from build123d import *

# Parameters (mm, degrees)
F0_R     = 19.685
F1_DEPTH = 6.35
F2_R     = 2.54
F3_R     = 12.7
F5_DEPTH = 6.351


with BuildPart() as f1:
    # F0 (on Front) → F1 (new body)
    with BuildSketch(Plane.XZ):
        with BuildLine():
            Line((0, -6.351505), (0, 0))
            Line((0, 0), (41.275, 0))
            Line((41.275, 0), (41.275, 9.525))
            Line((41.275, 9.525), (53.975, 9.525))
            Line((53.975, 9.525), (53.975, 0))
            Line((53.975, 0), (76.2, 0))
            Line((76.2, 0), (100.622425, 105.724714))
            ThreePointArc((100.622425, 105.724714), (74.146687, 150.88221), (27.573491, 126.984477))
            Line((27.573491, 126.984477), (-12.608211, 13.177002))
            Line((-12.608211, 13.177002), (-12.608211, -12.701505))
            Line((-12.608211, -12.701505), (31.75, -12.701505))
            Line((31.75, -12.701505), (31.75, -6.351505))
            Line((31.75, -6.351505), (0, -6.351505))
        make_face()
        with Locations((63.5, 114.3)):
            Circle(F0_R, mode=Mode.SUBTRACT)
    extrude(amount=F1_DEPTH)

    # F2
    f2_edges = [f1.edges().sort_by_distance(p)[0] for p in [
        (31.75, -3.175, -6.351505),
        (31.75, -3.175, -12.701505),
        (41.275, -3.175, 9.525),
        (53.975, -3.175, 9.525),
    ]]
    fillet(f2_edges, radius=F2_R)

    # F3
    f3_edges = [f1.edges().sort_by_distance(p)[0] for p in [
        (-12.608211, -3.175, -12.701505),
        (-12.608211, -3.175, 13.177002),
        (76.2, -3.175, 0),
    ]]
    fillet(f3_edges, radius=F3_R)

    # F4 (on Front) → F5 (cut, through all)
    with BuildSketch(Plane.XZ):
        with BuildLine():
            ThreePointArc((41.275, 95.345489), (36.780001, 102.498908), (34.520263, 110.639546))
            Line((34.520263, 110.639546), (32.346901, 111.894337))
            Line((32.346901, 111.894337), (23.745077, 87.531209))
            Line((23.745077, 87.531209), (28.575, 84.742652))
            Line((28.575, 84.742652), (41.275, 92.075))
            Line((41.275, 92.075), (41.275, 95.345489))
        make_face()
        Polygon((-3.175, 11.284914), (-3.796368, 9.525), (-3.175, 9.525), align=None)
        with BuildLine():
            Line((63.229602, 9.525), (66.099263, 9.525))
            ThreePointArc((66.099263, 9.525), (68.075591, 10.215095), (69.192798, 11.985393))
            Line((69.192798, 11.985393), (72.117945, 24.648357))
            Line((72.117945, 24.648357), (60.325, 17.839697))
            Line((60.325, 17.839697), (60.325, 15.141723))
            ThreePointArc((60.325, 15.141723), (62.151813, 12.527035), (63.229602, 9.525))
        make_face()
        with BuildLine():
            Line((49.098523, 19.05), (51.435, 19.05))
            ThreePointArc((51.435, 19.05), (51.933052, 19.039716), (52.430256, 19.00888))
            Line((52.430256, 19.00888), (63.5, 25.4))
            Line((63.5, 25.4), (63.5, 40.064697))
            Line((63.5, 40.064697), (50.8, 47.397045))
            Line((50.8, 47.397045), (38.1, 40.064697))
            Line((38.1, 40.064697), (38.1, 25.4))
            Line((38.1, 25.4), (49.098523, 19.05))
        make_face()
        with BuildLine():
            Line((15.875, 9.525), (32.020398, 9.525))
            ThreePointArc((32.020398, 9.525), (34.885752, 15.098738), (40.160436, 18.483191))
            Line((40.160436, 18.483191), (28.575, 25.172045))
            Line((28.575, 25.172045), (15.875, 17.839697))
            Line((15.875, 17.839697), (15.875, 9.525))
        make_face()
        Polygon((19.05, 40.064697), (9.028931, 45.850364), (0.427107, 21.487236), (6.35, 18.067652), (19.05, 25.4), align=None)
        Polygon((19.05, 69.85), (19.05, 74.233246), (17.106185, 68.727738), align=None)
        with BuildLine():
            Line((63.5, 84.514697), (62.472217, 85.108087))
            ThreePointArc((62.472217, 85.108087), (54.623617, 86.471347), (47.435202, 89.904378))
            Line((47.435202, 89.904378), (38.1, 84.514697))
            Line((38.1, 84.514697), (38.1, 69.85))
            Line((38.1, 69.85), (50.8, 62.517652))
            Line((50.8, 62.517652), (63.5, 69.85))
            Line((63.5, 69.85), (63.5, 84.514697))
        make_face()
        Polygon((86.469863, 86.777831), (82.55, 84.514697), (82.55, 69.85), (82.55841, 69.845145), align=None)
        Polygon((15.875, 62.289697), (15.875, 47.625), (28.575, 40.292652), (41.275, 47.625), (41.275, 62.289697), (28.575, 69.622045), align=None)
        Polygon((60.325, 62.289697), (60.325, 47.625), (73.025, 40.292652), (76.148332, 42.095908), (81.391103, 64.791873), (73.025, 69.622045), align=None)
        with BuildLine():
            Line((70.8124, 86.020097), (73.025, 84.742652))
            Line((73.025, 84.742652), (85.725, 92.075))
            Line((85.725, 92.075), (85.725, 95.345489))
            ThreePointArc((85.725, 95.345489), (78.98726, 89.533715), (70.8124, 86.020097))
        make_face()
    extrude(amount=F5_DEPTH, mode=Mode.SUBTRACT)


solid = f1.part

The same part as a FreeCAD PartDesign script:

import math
import FreeCAD as App
import Part
import Sketcher

V = App.Vector
Q = App.Units.Quantity


def edges_at(feature, points):
    """Names of the edges that pass closest to the given points."""
    edges = feature.Shape.Edges
    near = lambda p: min(range(len(edges)), key=lambda i: edges[i].distToShape(Part.Vertex(*p))[0])
    return sorted({f"Edge{near(p) + 1}" for p in points})

doc = App.newDocument("Part")
body = doc.addObject("PartDesign::Body", "Body")

sketch1 = doc.addObject("Sketcher::SketchObject", "Sketch")
body.addObject(sketch1)
sketch1.AttachmentSupport = (doc.XZ_Plane, [""])
sketch1.MapMode = "FlatFace"
sketch1.addGeometry([
    Part.LineSegment(V(0, -6.351505, 0), V(0, 0, 0)),
    Part.LineSegment(V(0, 0, 0), V(41.275, 0, 0)),
    Part.LineSegment(V(41.275, 0, 0), V(41.275, 9.525, 0)),
    Part.LineSegment(V(41.275, 9.525, 0), V(53.975, 9.525, 0)),
    Part.LineSegment(V(53.975, 9.525, 0), V(53.975, 0, 0)),
    Part.LineSegment(V(53.975, 0, 0), V(76.2, 0, 0)),
    Part.LineSegment(V(76.2, 0, 0), V(100.622425, 105.724714, 0)),
    Part.ArcOfCircle(Part.Circle(V(63.5, 114.300001, 0), V(0, 0, 1), 38.1), math.radians(-13.007179), math.radians(160.553538)),
    Part.LineSegment(V(27.573491, 126.984477, 0), V(-12.608211, 13.177002, 0)),
    Part.LineSegment(V(-12.608211, 13.177002, 0), V(-12.608211, -12.701505, 0)),
    Part.LineSegment(V(-12.608211, -12.701505, 0), V(31.75, -12.701505, 0)),
    Part.LineSegment(V(31.75, -12.701505, 0), V(31.75, -6.351505, 0)),
    Part.LineSegment(V(31.75, -6.351505, 0), V(0, -6.351505, 0)),
    Part.Circle(V(63.5, 114.3, 0), V(0, 0, 1), 19.685),
], False)
sketch1.addConstraint([
    Sketcher.Constraint("Coincident", 0, 2, 1, 1),
    Sketcher.Constraint("Coincident", 1, 2, 2, 1),
    Sketcher.Constraint("Coincident", 2, 2, 3, 1),
    Sketcher.Constraint("Coincident", 3, 2, 4, 1),
    Sketcher.Constraint("Coincident", 4, 2, 5, 1),
    Sketcher.Constraint("Coincident", 5, 2, 6, 1),
    Sketcher.Constraint("Tangent", 6, 2, 7, 1),
    Sketcher.Constraint("Tangent", 7, 2, 8, 1),
    Sketcher.Constraint("Coincident", 8, 2, 9, 1),
    Sketcher.Constraint("Coincident", 9, 2, 10, 1),
    Sketcher.Constraint("Coincident", 10, 2, 11, 1),
    Sketcher.Constraint("Coincident", 11, 2, 12, 1),
    Sketcher.Constraint("Coincident", 12, 2, 0, 1),
    Sketcher.Constraint("Vertical", 0),
    Sketcher.Constraint("Horizontal", 1),
    Sketcher.Constraint("Vertical", 2),
    Sketcher.Constraint("Horizontal", 3),
    Sketcher.Constraint("Vertical", 4),
    Sketcher.Constraint("Horizontal", 5),
    Sketcher.Constraint("Vertical", 9),
    Sketcher.Constraint("Horizontal", 10),
    Sketcher.Constraint("Vertical", 11),
    Sketcher.Constraint("Horizontal", 12),
    Sketcher.Constraint("Coincident", 0, 2, -1, 1),
    Sketcher.Constraint("Coincident", 13, 3, 7, 3),
    Sketcher.Constraint("PointOnObject", 4, 2, -1),
    Sketcher.Constraint("Radius", 7, Q("1.5 in")),
    Sketcher.Constraint("Diameter", 13, Q("1.55 in")),
    Sketcher.Constraint("DistanceX", 3, 1, 3, 2, Q("0.5 in")),
    Sketcher.Constraint("DistanceX", -1, 1, 5, 2, Q("3 in")),
    Sketcher.Constraint("DistanceX", 12, 2, 12, 1, Q("1.25 in")),
    Sketcher.Constraint("DistanceY", 11, 1, 11, 2, Q("0.25 in")),
    Sketcher.Constraint("DistanceX", -1, 1, 7, 3, Q("2.5 in")),
    Sketcher.Constraint("DistanceY", -1, 1, 7, 3, Q("4.5 in")),
    Sketcher.Constraint("DistanceX", 1, 1, 1, 2, Q("1.625 in")),
    Sketcher.Constraint("DistanceY", 2, 1, 2, 2, Q("0.375 in")),
    Sketcher.Constraint("DistanceX", 10, 1, 10, 2, 44.358211),
    Sketcher.Constraint("DistanceY", 2, 2, 8, 2, 3.652002),
    Sketcher.Constraint("DistanceY", 0, 1, 0, 2, 6.351505),
])
pad1 = doc.addObject("PartDesign::Pad", "Pad")
body.addObject(pad1)
pad1.Profile = sketch1
pad1.Length = Q("0.25 in")
doc.recompute()

fillet = doc.addObject("PartDesign::Fillet", "Fillet")
body.addObject(fillet)
fillet.Base = (pad1, edges_at(pad1, [
    (31.75, -3.175, -6.352),
    (31.75, -3.175, -12.702),
    (41.275, -3.175, 9.525),
    (53.975, -3.175, 9.525),
]))
fillet.Radius = Q("0.1 in")
doc.recompute()

fillet2 = doc.addObject("PartDesign::Fillet", "Fillet001")
body.addObject(fillet2)
fillet2.Base = (fillet, edges_at(fillet, [(-12.608, -3.175, -12.702), (-12.608, -3.175, 13.177), (76.2, -3.175, 0)]))
fillet2.Radius = Q("0.5 in")

sketch2 = doc.addObject("Sketcher::SketchObject", "Sketch001")
body.addObject(sketch2)
sketch2.AttachmentSupport = (doc.XZ_Plane, [""])
sketch2.MapMode = "FlatFace"
sketch2.addGeometry([
    Part.ArcOfCircle(Part.Circle(V(63.499992, 114.299995, 0), V(0, 0, 1), 29.209991), math.radians(-172.801054), math.radians(-139.540913)),
    Part.LineSegment(V(34.520263, 110.639546, 0), V(32.346901, 111.894337, 0)),
    Part.LineSegment(V(32.346901, 111.894337, 0), V(23.745077, 87.531209, 0)),
    Part.LineSegment(V(23.745077, 87.531209, 0), V(28.575, 84.742652, 0)),
    Part.LineSegment(V(28.575, 84.742652, 0), V(41.275, 92.075, 0)),
    Part.LineSegment(V(41.275, 92.075, 0), V(41.275, 95.345489, 0)),
    Part.LineSegment(V(-3.175, 11.284914, 0), V(-3.796368, 9.525, 0)),
    Part.LineSegment(V(-3.796368, 9.525, 0), V(-3.175, 9.525, 0)),
    Part.LineSegment(V(-3.175, 9.525, 0), V(-3.175, 11.284914, 0)),
    Part.LineSegment(V(63.229602, 9.525, 0), V(66.099263, 9.525, 0)),
    Part.ArcOfCircle(Part.Circle(V(66.099263, 12.699999, 0), V(0, 0, 1), 3.174999), math.radians(-90.000009), math.radians(-13.007157)),
    Part.LineSegment(V(69.192798, 11.985393, 0), V(72.117945, 24.648357, 0)),
    Part.LineSegment(V(72.117945, 24.648357, 0), V(60.325, 17.839697, 0)),
    Part.LineSegment(V(60.325, 17.839697, 0), V(60.325, 15.141723, 0)),
    Part.ArcOfCircle(Part.Circle(V(51.435, 6.984999, 0), V(0, 0, 1), 12.065001), math.radians(12.1532), math.radians(42.536901)),
    Part.LineSegment(V(49.098523, 19.05, 0), V(51.435, 19.05, 0)),
    Part.ArcOfCircle(Part.Circle(V(51.435017, 6.985425, 0), V(0, 0, 1), 12.064575), math.radians(85.268143), math.radians(90.000083)),
    Part.LineSegment(V(52.430256, 19.00888, 0), V(63.5, 25.4, 0)),
    Part.LineSegment(V(63.5, 25.4, 0), V(63.5, 40.064697, 0)),
    Part.LineSegment(V(63.5, 40.064697, 0), V(50.8, 47.397045, 0)),
    Part.LineSegment(V(50.8, 47.397045, 0), V(38.1, 40.064697, 0)),
    Part.LineSegment(V(38.1, 40.064697, 0), V(38.1, 25.4, 0)),
    Part.LineSegment(V(38.1, 25.4, 0), V(49.098523, 19.05, 0)),
    Part.LineSegment(V(15.875, 9.525, 0), V(32.020398, 9.525, 0)),
    Part.ArcOfCircle(Part.Circle(V(43.815005, 6.984996, 0), V(0, 0, 1), 12.065006), math.radians(107.632258), math.radians(167.846787)),
    Part.LineSegment(V(40.160436, 18.483191, 0), V(28.575, 25.172045, 0)),
    Part.LineSegment(V(28.575, 25.172045, 0), V(15.875, 17.839697, 0)),
    Part.LineSegment(V(15.875, 17.839697, 0), V(15.875, 9.525, 0)),
    Part.LineSegment(V(19.05, 40.064697, 0), V(9.028931, 45.850364, 0)),
    Part.LineSegment(V(9.028931, 45.850364, 0), V(0.427107, 21.487236, 0)),
    Part.LineSegment(V(0.427107, 21.487236, 0), V(6.35, 18.067652, 0)),
    Part.LineSegment(V(6.35, 18.067652, 0), V(19.05, 25.4, 0)),
    Part.LineSegment(V(19.05, 25.4, 0), V(19.05, 40.064697, 0)),
    Part.LineSegment(V(19.05, 69.85, 0), V(19.05, 74.233246, 0)),
    Part.LineSegment(V(19.05, 74.233246, 0), V(17.106185, 68.727738, 0)),
    Part.LineSegment(V(17.106185, 68.727738, 0), V(19.05, 69.85, 0)),
    Part.LineSegment(V(63.5, 84.514697, 0), V(62.472217, 85.108087, 0)),
    Part.ArcOfCircle(Part.Circle(V(63.500002, 114.300005, 0), V(0, 0, 1), 29.210006), math.radians(-123.365362), math.radians(-92.016429)),
    Part.LineSegment(V(47.435202, 89.904378, 0), V(38.1, 84.514697, 0)),
    Part.LineSegment(V(38.1, 84.514697, 0), V(38.1, 69.85, 0)),
    Part.LineSegment(V(38.1, 69.85, 0), V(50.8, 62.517652, 0)),
    Part.LineSegment(V(50.8, 62.517652, 0), V(63.5, 69.85, 0)),
    Part.LineSegment(V(63.5, 69.85, 0), V(63.5, 84.514697, 0)),
    Part.LineSegment(V(86.469863, 86.777831, 0), V(82.55, 84.514697, 0)),
    Part.LineSegment(V(82.55, 84.514697, 0), V(82.55, 69.85, 0)),
    Part.LineSegment(V(82.55, 69.85, 0), V(82.55841, 69.845145, 0)),
    Part.LineSegment(V(82.55841, 69.845145, 0), V(86.469863, 86.777831, 0)),
    Part.LineSegment(V(15.875, 62.289697, 0), V(15.875, 47.625, 0)),
    Part.LineSegment(V(15.875, 47.625, 0), V(28.575, 40.292652, 0)),
    Part.LineSegment(V(28.575, 40.292652, 0), V(41.275, 47.625, 0)),
    Part.LineSegment(V(41.275, 47.625, 0), V(41.275, 62.289697, 0)),
    Part.LineSegment(V(41.275, 62.289697, 0), V(28.575, 69.622045, 0)),
    Part.LineSegment(V(28.575, 69.622045, 0), V(15.875, 62.289697, 0)),
    Part.LineSegment(V(60.325, 62.289697, 0), V(60.325, 47.625, 0)),
    Part.LineSegment(V(60.325, 47.625, 0), V(73.025, 40.292652, 0)),
    Part.LineSegment(V(73.025, 40.292652, 0), V(76.148332, 42.095908, 0)),
    Part.LineSegment(V(76.148332, 42.095908, 0), V(81.391103, 64.791873, 0)),
    Part.LineSegment(V(81.391103, 64.791873, 0), V(73.025, 69.622045, 0)),
    Part.LineSegment(V(73.025, 69.622045, 0), V(60.325, 62.289697, 0)),
    Part.LineSegment(V(70.8124, 86.020097, 0), V(73.025, 84.742652, 0)),
    Part.LineSegment(V(73.025, 84.742652, 0), V(85.725, 92.075, 0)),
    Part.LineSegment(V(85.725, 92.075, 0), V(85.725, 95.345489, 0)),
    Part.ArcOfCircle(Part.Circle(V(63.499997, 114.300005, 0), V(0, 0, 1), 29.210005), math.radians(-75.502428), math.radians(-40.459087)),
], False)
sketch2.addConstraint([
    Sketcher.Constraint("Coincident", 0, 1, 1, 1),
    Sketcher.Constraint("Coincident", 1, 2, 2, 1),
    Sketcher.Constraint("Coincident", 2, 2, 3, 1),
    Sketcher.Constraint("Coincident", 3, 2, 4, 1),
    Sketcher.Constraint("Coincident", 4, 2, 5, 1),
    Sketcher.Constraint("Coincident", 5, 2, 0, 2),
    Sketcher.Constraint("Coincident", 6, 2, 7, 1),
    Sketcher.Constraint("Coincident", 7, 2, 8, 1),
    Sketcher.Constraint("Coincident", 8, 2, 6, 1),
    Sketcher.Constraint("Tangent", 9, 2, 10, 1),
    Sketcher.Constraint("Tangent", 10, 2, 11, 1),
    Sketcher.Constraint("Coincident", 11, 2, 12, 1),
    Sketcher.Constraint("Coincident", 12, 2, 13, 1),
    Sketcher.Constraint("Coincident", 13, 2, 14, 2),
    Sketcher.Constraint("Coincident", 14, 1, 9, 1),
    Sketcher.Constraint("Tangent", 15, 2, 16, 2),
    Sketcher.Constraint("Coincident", 16, 1, 17, 1),
    Sketcher.Constraint("Coincident", 17, 2, 18, 1),
    Sketcher.Constraint("Coincident", 18, 2, 19, 1),
    Sketcher.Constraint("Coincident", 19, 2, 20, 1),
    Sketcher.Constraint("Coincident", 20, 2, 21, 1),
    Sketcher.Constraint("Coincident", 21, 2, 22, 1),
    Sketcher.Constraint("Coincident", 22, 2, 15, 1),
    Sketcher.Constraint("Coincident", 23, 2, 24, 2),
    Sketcher.Constraint("Coincident", 24, 1, 25, 1),
    Sketcher.Constraint("Coincident", 25, 2, 26, 1),
    Sketcher.Constraint("Coincident", 26, 2, 27, 1),
    Sketcher.Constraint("Coincident", 27, 2, 23, 1),
    Sketcher.Constraint("Coincident", 28, 2, 29, 1),
    Sketcher.Constraint("Coincident", 29, 2, 30, 1),
    Sketcher.Constraint("Coincident", 30, 2, 31, 1),
    Sketcher.Constraint("Coincident", 31, 2, 32, 1),
    Sketcher.Constraint("Coincident", 32, 2, 28, 1),
    Sketcher.Constraint("Coincident", 33, 2, 34, 1),
    Sketcher.Constraint("Coincident", 34, 2, 35, 1),
    Sketcher.Constraint("Coincident", 35, 2, 33, 1),
    Sketcher.Constraint("Coincident", 36, 2, 37, 2),
    Sketcher.Constraint("Coincident", 37, 1, 38, 1),
    Sketcher.Constraint("Coincident", 38, 2, 39, 1),
    Sketcher.Constraint("Coincident", 39, 2, 40, 1),
    Sketcher.Constraint("Coincident", 40, 2, 41, 1),
    Sketcher.Constraint("Coincident", 41, 2, 42, 1),
    Sketcher.Constraint("Coincident", 42, 2, 36, 1),
    Sketcher.Constraint("Coincident", 43, 2, 44, 1),
    Sketcher.Constraint("Coincident", 44, 2, 45, 1),
    Sketcher.Constraint("Coincident", 45, 2, 46, 1),
    Sketcher.Constraint("Coincident", 46, 2, 43, 1),
    Sketcher.Constraint("Coincident", 47, 2, 48, 1),
    Sketcher.Constraint("Coincident", 48, 2, 49, 1),
    Sketcher.Constraint("Coincident", 49, 2, 50, 1),
    Sketcher.Constraint("Coincident", 50, 2, 51, 1),
    Sketcher.Constraint("Coincident", 51, 2, 52, 1),
    Sketcher.Constraint("Coincident", 52, 2, 47, 1),
    Sketcher.Constraint("Coincident", 53, 2, 54, 1),
    Sketcher.Constraint("Coincident", 54, 2, 55, 1),
    Sketcher.Constraint("Coincident", 55, 2, 56, 1),
    Sketcher.Constraint("Coincident", 56, 2, 57, 1),
    Sketcher.Constraint("Coincident", 57, 2, 58, 1),
    Sketcher.Constraint("Coincident", 58, 2, 53, 1),
    Sketcher.Constraint("Coincident", 59, 2, 60, 1),
    Sketcher.Constraint("Coincident", 60, 2, 61, 1),
    Sketcher.Constraint("Coincident", 61, 2, 62, 2),
    Sketcher.Constraint("Coincident", 62, 1, 59, 1),
    Sketcher.Constraint("Vertical", 5),
    Sketcher.Constraint("Horizontal", 7),
    Sketcher.Constraint("Vertical", 8),
    Sketcher.Constraint("Horizontal", 9),
    Sketcher.Constraint("Vertical", 13),
    Sketcher.Constraint("Horizontal", 15),
    Sketcher.Constraint("Vertical", 18),
    Sketcher.Constraint("Vertical", 21),
    Sketcher.Constraint("Horizontal", 23),
    Sketcher.Constraint("Vertical", 27),
    Sketcher.Constraint("Vertical", 32),
    Sketcher.Constraint("Vertical", 33),
    Sketcher.Constraint("Vertical", 39),
    Sketcher.Constraint("Vertical", 42),
    Sketcher.Constraint("Vertical", 44),
    Sketcher.Constraint("Vertical", 47),
    Sketcher.Constraint("Vertical", 50),
    Sketcher.Constraint("Vertical", 53),
    Sketcher.Constraint("Vertical", 61),
    Sketcher.Constraint("Coincident", 62, 3, 37, 3),
    Sketcher.Constraint("Equal", 37, 62),
    Sketcher.Constraint("Parallel", 1, 3),
    Sketcher.Constraint("Parallel", 2, 6),
    Sketcher.Constraint("Parallel", 4, 12),
    Sketcher.Constraint("Parallel", 12, 17),
    Sketcher.Constraint("Parallel", 3, 19),
    Sketcher.Constraint("Parallel", 17, 20),
    Sketcher.Constraint("Parallel", 19, 22),
    Sketcher.Constraint("Parallel", 22, 25),
    Sketcher.Constraint("Parallel", 20, 26),
    Sketcher.Constraint("Parallel", 25, 28),
    Sketcher.Constraint("Parallel", 6, 29),
    Sketcher.Constraint("Parallel", 28, 30),
    Sketcher.Constraint("Parallel", 26, 31),
    Sketcher.Constraint("Parallel", 29, 34),
    Sketcher.Constraint("Parallel", 31, 35),
    Sketcher.Constraint("Parallel", 30, 36),
    Sketcher.Constraint("Parallel", 35, 38),
    Sketcher.Constraint("Parallel", 36, 40),
    Sketcher.Constraint("Parallel", 38, 41),
    Sketcher.Constraint("Parallel", 41, 43),
    Sketcher.Constraint("Parallel", 11, 46),
    Sketcher.Constraint("Parallel", 40, 48),
    Sketcher.Constraint("Parallel", 43, 49),
    Sketcher.Constraint("Parallel", 48, 51),
    Sketcher.Constraint("Parallel", 49, 52),
    Sketcher.Constraint("Parallel", 51, 54),
    Sketcher.Constraint("Parallel", 52, 55),
    Sketcher.Constraint("Parallel", 46, 56),
    Sketcher.Constraint("Parallel", 54, 57),
    Sketcher.Constraint("Parallel", 55, 58),
    Sketcher.Constraint("Parallel", 57, 59),
    Sketcher.Constraint("Parallel", 58, 60),
    Sketcher.Constraint("Horizontal", 7, 2, 9, 2),
    Sketcher.Constraint("Horizontal", 18, 2, 20, 2),
    Sketcher.Constraint("Horizontal", 17, 2, 21, 2),
    Sketcher.Constraint("Horizontal", 14, 1, 23, 2),
    Sketcher.Constraint("Horizontal", 12, 2, 26, 2),
    Sketcher.Constraint("Horizontal", 21, 2, 31, 2),
    Sketcher.Constraint("Horizontal", 20, 2, 32, 2),
    Sketcher.Constraint("Horizontal", 35, 2, 39, 2),
    Sketcher.Constraint("Horizontal", 39, 2, 41, 2),
    Sketcher.Constraint("Horizontal", 38, 2, 42, 2),
    Sketcher.Constraint("Horizontal", 42, 2, 43, 2),
    Sketcher.Constraint("Horizontal", 41, 2, 44, 2),
    Sketcher.Constraint("Horizontal", 47, 2, 49, 2),
    Sketcher.Constraint("Horizontal", 50, 2, 52, 2),
    Sketcher.Constraint("Horizontal", 49, 2, 53, 2),
    Sketcher.Constraint("Horizontal", 48, 2, 54, 2),
    Sketcher.Constraint("Horizontal", 51, 2, 57, 2),
    Sketcher.Constraint("Horizontal", 52, 2, 58, 2),
    Sketcher.Constraint("Horizontal", 3, 2, 59, 2),
    Sketcher.Constraint("Horizontal", 4, 2, 60, 2),
    Sketcher.Constraint("Horizontal", 5, 2, 61, 2),
    Sketcher.Constraint("Vertical", 14, 3, 15, 2),
    Sketcher.Constraint("Vertical", 3, 2, 25, 2),
    Sketcher.Constraint("Vertical", 32, 2, 33, 2),
    Sketcher.Constraint("Vertical", 21, 2, 38, 2),
    Sketcher.Constraint("Vertical", 19, 2, 40, 2),
    Sketcher.Constraint("Vertical", 18, 2, 41, 2),
    Sketcher.Constraint("Vertical", 27, 2, 47, 2),
    Sketcher.Constraint("Vertical", 25, 2, 48, 2),
    Sketcher.Constraint("Vertical", 5, 2, 49, 2),
    Sketcher.Constraint("Vertical", 13, 2, 53, 2),
    Sketcher.Constraint("Vertical", 57, 2, 59, 2),
    Sketcher.Constraint("Equal", 32, 39),
    Sketcher.Constraint("Equal", 44, 47),
    Sketcher.Constraint("Equal", 4, 19),
    Sketcher.Constraint("Equal", 2, 29),
    Sketcher.Constraint("Equal", 26, 31),
    Sketcher.Constraint("DistanceY", -1, 1, 17, 2, Q("1 in")),
    Sketcher.Constraint("DistanceX", -1, 1, 19, 2, Q("2 in")),
    Sketcher.Constraint("Angle", 1, Q("150.000003 deg")),
    Sketcher.Constraint("Radius", 10, Q("0.125 in")),
    Sketcher.Constraint("Radius", 14, Q("0.475 in")),
    Sketcher.Constraint("Distance", 22, Q("0.5 in")),
    Sketcher.Constraint("DistanceY", -1, 1, 0, 3, Q("4.4999998 in")),
    Sketcher.Constraint("DistanceY", -1, 1, 10, 3, Q("0.5 in")),
    Sketcher.Constraint("DistanceX", -1, 1, 37, 3, Q("2.5000001 in")),
    Sketcher.Constraint("DistanceY", -1, 1, 62, 3, Q("4.5000002 in")),
    Sketcher.Constraint("DistanceX", -1, 1, 17, 2, Q("2.5 in")),
    Sketcher.Constraint("DistanceX", -1, 1, 30, 2, Q("0.25 in")),
    Sketcher.Constraint("DistanceY", -1, 1, 35, 2, Q("2.75 in")),
    Sketcher.Constraint("DistanceX", -1, 1, 43, 2, Q("3.25 in")),
    Sketcher.Constraint("DistanceX", -1, 1, 14, 3, Q("2.025 in")),
    Sketcher.Constraint("DistanceY", -1, 1, 14, 3, Q("0.275 in")),
    Sketcher.Constraint("DistanceX", -1, 1, 24, 3, Q("1.7250002 in")),
    Sketcher.Constraint("DistanceY", -1, 1, 24, 3, Q("0.2749998 in")),
    Sketcher.Constraint("DistanceX", -1, 1, 3, 2, Q("1.125 in")),
    Sketcher.Constraint("DistanceY", -1, 1, 4, 2, Q("3.625 in")),
    Sketcher.Constraint("DistanceX", 7, 2, -1, 1, Q("0.125 in")),
    Sketcher.Constraint("DistanceX", -1, 1, 12, 2, Q("2.375 in")),
    Sketcher.Constraint("DistanceY", -1, 1, 47, 2, Q("1.875 in")),
    Sketcher.Constraint("Radius", 0, 29.209991),
    Sketcher.Constraint("DistanceX", 23, 1, 23, 2, 16.145398),
    Sketcher.Constraint("DistanceX", -1, 1, 1, 2, Q("1.2735 in")),
    Sketcher.Constraint("Radius", 16, 12.064575),
    Sketcher.Constraint("Radius", 37, 29.210006),
    Sketcher.Constraint("DistanceX", 7, 1, 7, 2, 0.621368),
    Sketcher.Constraint("DistanceX", 9, 1, 9, 2, 2.869661),
    Sketcher.Constraint("DistanceX", -1, 1, 10, 2, 69.192798),
    Sketcher.Constraint("Distance", 11, 12.996428),
    Sketcher.Constraint("Distance", 34, 5.838582),
    Sketcher.Constraint("Distance", 36, 1.186781),
    Sketcher.Constraint("Distance", 45, 0.009711),
    Sketcher.Constraint("DistanceY", 8, 1, 8, 2, 1.759914),
    Sketcher.Constraint("DistanceX", -1, 1, 28, 2, 9.028931),
    Sketcher.Constraint("DistanceX", -1, 1, 45, 2, 82.55841),
    Sketcher.Constraint("DistanceX", -1, 1, 55, 2, 76.148332),
])
pocket1 = doc.addObject("PartDesign::Pocket", "Pocket")
body.addObject(pocket1)
pocket1.Profile = sketch2
pocket1.Type = "ThroughAll"
pocket1.Reversed = True

doc.recompute()
